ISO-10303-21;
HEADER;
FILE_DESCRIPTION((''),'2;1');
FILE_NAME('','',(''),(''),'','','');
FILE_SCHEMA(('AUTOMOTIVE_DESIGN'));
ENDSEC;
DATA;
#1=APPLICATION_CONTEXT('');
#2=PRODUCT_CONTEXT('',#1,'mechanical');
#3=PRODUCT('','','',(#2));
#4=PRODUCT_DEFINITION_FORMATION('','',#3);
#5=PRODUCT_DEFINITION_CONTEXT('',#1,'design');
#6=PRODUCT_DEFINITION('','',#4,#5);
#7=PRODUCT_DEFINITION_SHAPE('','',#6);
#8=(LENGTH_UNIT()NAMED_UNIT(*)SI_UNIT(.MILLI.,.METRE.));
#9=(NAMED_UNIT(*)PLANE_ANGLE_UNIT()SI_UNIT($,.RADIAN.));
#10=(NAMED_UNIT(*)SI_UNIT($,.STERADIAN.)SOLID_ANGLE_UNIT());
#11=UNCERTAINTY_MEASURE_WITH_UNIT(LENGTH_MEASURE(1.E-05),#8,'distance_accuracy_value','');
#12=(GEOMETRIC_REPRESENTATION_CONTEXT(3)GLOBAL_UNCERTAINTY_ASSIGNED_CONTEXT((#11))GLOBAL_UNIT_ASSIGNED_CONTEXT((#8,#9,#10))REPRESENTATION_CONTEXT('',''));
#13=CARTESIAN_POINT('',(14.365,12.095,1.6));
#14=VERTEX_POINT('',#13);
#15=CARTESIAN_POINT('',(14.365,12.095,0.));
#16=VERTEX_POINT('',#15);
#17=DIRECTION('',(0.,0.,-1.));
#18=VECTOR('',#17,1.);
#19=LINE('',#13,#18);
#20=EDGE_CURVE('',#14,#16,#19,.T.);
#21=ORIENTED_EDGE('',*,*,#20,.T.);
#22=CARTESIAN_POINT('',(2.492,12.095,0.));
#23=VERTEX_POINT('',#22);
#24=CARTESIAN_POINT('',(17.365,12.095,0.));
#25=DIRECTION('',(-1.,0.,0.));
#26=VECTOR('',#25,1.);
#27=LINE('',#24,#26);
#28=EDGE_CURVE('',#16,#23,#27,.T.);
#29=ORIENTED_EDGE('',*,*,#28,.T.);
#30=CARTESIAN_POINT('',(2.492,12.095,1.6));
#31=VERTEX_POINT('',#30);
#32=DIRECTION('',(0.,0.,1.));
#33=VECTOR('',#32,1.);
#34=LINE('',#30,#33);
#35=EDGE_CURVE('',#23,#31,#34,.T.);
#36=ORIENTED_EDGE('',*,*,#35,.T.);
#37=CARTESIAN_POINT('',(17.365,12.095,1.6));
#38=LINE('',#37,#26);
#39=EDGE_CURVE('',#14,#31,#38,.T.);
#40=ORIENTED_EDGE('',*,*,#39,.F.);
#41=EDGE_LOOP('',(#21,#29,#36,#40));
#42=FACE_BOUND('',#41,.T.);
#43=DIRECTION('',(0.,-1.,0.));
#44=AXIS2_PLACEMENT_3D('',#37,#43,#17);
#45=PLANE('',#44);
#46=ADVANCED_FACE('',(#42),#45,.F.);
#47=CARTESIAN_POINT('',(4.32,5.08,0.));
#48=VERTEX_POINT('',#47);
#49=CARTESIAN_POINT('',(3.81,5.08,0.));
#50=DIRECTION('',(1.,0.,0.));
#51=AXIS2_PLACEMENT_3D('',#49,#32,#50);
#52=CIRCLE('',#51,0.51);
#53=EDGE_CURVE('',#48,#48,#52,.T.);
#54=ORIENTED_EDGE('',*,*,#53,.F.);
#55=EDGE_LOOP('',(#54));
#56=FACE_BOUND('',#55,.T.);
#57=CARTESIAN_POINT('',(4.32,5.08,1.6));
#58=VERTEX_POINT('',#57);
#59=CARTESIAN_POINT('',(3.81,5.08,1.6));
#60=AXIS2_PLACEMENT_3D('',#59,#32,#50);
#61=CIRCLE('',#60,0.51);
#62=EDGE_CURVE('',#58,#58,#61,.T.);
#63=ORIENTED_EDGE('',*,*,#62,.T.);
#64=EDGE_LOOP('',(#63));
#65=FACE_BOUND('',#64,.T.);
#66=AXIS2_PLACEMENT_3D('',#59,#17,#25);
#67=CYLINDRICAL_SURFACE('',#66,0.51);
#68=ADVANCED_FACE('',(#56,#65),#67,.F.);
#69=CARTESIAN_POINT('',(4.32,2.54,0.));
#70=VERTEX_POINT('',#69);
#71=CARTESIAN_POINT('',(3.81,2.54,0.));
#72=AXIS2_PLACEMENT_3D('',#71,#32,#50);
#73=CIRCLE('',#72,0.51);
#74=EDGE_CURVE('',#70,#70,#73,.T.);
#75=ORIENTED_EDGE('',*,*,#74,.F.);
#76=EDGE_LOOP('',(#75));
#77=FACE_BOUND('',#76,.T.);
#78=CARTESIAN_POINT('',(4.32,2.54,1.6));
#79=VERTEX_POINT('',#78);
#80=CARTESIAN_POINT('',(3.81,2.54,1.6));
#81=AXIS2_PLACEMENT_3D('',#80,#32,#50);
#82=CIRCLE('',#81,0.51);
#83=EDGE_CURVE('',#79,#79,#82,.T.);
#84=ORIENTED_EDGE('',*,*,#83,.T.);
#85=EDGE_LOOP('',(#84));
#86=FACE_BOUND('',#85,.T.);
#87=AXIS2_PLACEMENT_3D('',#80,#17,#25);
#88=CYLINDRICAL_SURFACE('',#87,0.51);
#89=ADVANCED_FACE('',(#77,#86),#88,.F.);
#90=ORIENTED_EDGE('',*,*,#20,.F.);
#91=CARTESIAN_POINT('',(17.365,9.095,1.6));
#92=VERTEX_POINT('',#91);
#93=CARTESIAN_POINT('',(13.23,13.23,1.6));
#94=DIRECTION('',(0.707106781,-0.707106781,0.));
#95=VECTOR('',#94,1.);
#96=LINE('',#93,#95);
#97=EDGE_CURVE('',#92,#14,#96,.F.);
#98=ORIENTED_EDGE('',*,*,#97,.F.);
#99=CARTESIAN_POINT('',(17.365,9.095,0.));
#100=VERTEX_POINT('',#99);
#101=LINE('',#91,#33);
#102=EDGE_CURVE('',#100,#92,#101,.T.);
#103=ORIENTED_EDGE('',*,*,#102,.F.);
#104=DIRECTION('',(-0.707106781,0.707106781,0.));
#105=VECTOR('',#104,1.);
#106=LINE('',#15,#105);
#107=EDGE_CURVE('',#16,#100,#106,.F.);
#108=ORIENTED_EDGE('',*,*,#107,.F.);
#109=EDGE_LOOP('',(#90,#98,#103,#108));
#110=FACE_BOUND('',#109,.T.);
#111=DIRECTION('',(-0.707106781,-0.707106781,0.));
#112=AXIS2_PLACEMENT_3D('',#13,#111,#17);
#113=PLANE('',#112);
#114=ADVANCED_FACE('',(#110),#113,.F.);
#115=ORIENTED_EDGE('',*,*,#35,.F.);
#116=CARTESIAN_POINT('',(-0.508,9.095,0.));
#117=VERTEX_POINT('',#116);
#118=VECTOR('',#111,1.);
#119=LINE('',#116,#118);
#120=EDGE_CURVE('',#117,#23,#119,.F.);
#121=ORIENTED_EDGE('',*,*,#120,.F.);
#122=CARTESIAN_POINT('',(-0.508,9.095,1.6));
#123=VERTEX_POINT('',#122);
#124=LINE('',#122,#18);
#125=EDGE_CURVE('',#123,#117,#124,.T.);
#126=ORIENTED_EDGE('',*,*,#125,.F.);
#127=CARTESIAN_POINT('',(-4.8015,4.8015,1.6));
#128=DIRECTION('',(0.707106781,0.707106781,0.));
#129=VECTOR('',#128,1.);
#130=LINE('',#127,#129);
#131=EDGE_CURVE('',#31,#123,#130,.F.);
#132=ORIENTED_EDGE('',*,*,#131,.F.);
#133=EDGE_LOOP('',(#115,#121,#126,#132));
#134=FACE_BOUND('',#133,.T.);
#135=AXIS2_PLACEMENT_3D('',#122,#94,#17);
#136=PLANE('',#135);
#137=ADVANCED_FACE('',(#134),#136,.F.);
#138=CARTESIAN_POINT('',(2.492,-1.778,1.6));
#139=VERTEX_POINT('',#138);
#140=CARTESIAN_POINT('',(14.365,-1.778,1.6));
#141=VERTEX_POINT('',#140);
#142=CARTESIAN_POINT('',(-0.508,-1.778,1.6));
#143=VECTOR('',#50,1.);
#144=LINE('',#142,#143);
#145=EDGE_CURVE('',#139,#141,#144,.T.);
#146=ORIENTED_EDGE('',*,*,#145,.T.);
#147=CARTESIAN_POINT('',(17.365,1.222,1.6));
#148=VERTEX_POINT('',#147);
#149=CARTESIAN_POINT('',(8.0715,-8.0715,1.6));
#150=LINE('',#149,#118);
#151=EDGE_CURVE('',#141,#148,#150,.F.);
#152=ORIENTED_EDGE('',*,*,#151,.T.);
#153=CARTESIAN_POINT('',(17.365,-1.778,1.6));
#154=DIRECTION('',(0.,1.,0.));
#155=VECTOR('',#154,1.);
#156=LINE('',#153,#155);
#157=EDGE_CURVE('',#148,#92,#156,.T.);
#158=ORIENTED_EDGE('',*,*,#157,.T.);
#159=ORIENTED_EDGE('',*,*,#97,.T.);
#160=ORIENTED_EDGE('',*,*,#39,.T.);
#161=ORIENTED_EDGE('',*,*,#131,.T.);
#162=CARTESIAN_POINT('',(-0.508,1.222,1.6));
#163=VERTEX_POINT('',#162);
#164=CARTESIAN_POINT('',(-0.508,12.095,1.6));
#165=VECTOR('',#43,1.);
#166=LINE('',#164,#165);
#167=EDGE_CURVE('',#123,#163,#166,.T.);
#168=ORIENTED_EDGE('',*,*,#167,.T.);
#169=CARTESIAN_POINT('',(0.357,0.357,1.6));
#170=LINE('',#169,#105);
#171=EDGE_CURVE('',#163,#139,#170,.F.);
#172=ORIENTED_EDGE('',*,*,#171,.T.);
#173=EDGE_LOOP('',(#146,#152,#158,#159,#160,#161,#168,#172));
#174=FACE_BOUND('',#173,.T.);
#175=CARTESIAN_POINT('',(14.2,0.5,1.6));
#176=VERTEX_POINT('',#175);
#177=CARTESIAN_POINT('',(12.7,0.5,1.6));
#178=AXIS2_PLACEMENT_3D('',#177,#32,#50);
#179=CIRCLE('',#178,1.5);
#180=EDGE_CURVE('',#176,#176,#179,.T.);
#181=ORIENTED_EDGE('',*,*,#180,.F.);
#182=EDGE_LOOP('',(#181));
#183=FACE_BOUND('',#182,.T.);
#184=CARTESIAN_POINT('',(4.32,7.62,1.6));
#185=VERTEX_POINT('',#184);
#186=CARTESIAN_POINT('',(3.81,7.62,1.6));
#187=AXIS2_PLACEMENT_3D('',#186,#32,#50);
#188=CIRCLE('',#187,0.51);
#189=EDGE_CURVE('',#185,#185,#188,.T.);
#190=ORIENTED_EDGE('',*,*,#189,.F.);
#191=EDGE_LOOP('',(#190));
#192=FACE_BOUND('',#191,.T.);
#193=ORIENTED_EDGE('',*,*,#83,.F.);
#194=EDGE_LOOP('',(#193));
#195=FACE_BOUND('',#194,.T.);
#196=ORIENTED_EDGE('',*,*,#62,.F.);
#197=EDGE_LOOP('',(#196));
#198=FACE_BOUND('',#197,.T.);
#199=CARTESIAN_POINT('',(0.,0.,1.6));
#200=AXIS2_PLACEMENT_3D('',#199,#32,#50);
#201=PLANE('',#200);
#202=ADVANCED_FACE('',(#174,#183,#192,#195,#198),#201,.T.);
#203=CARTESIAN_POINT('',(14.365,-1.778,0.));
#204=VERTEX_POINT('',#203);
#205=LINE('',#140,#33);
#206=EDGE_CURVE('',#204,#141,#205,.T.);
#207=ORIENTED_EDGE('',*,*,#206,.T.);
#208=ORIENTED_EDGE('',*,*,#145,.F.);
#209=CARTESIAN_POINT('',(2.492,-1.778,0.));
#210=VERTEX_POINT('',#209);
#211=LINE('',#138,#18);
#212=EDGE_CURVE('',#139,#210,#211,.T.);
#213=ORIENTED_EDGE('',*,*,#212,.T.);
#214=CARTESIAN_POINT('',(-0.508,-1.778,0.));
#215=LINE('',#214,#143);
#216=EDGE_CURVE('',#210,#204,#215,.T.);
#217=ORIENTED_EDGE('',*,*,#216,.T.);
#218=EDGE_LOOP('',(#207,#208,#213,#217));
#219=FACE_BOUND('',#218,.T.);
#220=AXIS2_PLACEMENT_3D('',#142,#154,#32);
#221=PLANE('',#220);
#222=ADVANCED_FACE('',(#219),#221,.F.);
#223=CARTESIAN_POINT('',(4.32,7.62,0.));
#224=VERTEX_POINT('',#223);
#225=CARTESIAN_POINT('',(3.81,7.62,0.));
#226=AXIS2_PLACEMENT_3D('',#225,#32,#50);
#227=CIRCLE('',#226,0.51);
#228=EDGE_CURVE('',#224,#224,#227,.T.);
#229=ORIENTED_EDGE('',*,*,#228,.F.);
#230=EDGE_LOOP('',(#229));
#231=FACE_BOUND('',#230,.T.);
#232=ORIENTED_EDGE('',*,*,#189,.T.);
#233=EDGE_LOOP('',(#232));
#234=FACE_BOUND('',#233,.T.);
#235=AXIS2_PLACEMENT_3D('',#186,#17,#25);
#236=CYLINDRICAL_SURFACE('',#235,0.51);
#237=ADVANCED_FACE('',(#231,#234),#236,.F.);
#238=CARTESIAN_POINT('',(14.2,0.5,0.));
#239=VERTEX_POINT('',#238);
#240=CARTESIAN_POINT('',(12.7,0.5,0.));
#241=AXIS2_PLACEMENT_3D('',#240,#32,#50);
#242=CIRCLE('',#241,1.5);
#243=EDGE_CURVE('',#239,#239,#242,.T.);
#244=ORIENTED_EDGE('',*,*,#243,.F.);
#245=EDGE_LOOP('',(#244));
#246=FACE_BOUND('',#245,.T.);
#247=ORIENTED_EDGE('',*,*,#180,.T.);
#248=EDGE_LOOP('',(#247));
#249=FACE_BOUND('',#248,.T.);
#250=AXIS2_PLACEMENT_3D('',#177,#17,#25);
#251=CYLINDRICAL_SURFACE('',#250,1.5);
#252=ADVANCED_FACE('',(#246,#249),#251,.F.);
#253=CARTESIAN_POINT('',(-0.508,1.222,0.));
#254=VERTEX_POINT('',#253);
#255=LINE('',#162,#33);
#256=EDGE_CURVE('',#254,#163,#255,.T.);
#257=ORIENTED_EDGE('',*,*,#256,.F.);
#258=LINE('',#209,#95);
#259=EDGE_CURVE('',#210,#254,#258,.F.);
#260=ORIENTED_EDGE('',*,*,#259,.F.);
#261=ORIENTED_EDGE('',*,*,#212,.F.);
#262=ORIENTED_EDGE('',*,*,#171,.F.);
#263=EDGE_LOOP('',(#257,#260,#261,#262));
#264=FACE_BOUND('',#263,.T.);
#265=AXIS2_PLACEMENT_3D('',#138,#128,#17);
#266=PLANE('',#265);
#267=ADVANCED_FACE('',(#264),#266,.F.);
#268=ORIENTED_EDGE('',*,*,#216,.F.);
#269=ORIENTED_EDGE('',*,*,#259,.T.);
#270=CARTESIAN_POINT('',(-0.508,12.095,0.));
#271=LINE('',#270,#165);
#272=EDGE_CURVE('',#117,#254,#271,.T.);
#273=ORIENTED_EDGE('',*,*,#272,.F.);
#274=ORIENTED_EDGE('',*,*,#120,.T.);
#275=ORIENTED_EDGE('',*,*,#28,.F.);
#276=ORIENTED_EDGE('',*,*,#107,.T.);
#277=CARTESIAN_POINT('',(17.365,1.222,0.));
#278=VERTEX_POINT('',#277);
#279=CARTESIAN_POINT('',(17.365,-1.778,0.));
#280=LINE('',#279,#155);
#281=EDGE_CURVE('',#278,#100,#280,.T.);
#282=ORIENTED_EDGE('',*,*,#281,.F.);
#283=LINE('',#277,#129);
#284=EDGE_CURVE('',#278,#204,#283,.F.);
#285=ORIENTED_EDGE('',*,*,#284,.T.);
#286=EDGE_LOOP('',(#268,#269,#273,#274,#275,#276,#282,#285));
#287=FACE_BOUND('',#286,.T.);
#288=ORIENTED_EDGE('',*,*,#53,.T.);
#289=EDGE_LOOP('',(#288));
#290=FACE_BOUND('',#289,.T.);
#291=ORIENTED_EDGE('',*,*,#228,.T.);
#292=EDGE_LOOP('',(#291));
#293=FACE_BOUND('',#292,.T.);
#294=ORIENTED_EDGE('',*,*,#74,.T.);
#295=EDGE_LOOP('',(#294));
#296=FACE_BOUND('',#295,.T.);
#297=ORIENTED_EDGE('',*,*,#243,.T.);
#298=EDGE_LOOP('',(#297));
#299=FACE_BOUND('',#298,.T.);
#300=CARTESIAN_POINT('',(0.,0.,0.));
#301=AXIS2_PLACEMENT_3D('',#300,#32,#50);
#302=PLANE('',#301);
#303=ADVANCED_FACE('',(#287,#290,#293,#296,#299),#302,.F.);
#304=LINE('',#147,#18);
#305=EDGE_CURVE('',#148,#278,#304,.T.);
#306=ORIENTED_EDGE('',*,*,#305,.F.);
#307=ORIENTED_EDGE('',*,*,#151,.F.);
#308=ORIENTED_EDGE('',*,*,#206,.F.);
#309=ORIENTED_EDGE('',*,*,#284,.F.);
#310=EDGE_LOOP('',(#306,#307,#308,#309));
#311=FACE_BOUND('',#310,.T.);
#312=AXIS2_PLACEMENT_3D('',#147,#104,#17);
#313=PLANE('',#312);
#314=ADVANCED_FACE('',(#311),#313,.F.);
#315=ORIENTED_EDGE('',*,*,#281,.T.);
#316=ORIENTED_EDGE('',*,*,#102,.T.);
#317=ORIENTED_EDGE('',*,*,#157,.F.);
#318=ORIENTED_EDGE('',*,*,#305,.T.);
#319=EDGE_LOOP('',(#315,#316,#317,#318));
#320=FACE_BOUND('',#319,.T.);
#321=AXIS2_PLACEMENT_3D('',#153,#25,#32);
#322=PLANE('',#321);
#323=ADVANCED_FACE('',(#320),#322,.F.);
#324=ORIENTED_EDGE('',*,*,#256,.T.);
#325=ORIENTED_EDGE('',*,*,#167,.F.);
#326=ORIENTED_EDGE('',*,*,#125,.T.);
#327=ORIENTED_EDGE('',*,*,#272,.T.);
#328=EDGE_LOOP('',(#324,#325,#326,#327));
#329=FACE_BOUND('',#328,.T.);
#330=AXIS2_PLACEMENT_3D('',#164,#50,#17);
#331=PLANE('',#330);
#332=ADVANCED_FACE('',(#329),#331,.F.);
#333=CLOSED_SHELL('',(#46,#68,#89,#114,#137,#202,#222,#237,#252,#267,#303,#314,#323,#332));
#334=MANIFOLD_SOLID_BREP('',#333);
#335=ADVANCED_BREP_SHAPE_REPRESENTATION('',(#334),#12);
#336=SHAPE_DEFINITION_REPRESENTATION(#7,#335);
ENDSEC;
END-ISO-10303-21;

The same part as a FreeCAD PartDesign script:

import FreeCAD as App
import Part
import Sketcher


def edges_at(feature, points):
    """Names of the edges that pass closest to the given points."""
    edges = feature.Shape.Edges
    near = lambda p: min(range(len(edges)), key=lambda i: edges[i].distToShape(Part.Vertex(*p))[0])
    return sorted({f"Edge{near(p) + 1}" for p in points})

doc = App.newDocument("Part")
params = doc.addObject("Spreadsheet::Sheet", "Params")
for row, (alias, value) in enumerate([
    ("pad1_length", "1.6 mm"),
    ("sketch2_diameter", "3 mm"),
    ("sketch3_diameter", "1.02 mm"),
    ("chamfer_size", "3 mm"),
], start=1):
    params.set(f"A{row}", alias)
    params.set(f"B{row}", "=" + value)
    params.setAlias(f"B{row}", alias)

body = doc.addObject("PartDesign::Body", "Body")

sketch1 = body.newObject("Sketcher::SketchObject", "Sketch")
sketch1.AttachmentSupport = (doc.getObject("XY_Plane"), [""])
sketch1.MapMode = "FlatFace"
sketch1.addGeometry(Part.LineSegment(App.Vector(-1, 12, 0), App.Vector(-1, -2, 0)), False)
sketch1.addGeometry(Part.LineSegment(App.Vector(-1, -2, 0), App.Vector(17, -2, 0)), False)
sketch1.addGeometry(Part.LineSegment(App.Vector(17, -2, 0), App.Vector(17, 12, 0)), False)
sketch1.addGeometry(Part.LineSegment(App.Vector(17, 12, 0), App.Vector(-1, 12, 0)), False)
sketch1.addConstraint(Sketcher.Constraint("Coincident", 0, 2, 1, 1))
sketch1.addConstraint(Sketcher.Constraint("Coincident", 1, 2, 2, 1))
sketch1.addConstraint(Sketcher.Constraint("Coincident", 2, 2, 3, 1))
sketch1.addConstraint(Sketcher.Constraint("Coincident", 3, 2, 0, 1))
sketch1.addConstraint(Sketcher.Constraint("Vertical", 0))
sketch1.addConstraint(Sketcher.Constraint("Horizontal", 1))
sketch1.addConstraint(Sketcher.Constraint("Vertical", 2))
sketch1.addConstraint(Sketcher.Constraint("Horizontal", 3))
sketch1.addConstraint(Sketcher.Constraint("DistanceX", 1, 1, 1, 2, 17.873))
sketch1.addConstraint(Sketcher.Constraint("DistanceY", 0, 2, 0, 1, 13.873))
sketch1.addConstraint(Sketcher.Constraint("DistanceX", 0, 2, -1, 1, 0.508))
sketch1.addConstraint(Sketcher.Constraint("DistanceY", 0, 2, -1, 1, 1.778))
pad1 = body.newObject("PartDesign::Pad", "Pad")
pad1.Profile = sketch1
pad1.setExpression("Length", "Params.pad1_length")

sketch2 = body.newObject("Sketcher::SketchObject", "Sketch001")
sketch2.AttachmentSupport = (doc.getObject("XY_Plane"), [""])
sketch2.MapMode = "FlatFace"
sketch2.addGeometry(Part.Circle(App.Vector(12.7, 0.5, 0), App.Vector(0, 0, 1), 1.5), False)
sketch2.addConstraint(Sketcher.Constraint("Diameter", 0, 3.0))
sketch2.addConstraint(Sketcher.Constraint("DistanceX", -1, 1, 0, 3, 12.7))
sketch2.addConstraint(Sketcher.Constraint("DistanceY", -1, 1, 0, 3, 0.5))
sketch2.setExpression("Constraints[0]", "Params.sketch2_diameter")
pocket1 = body.newObject("PartDesign::Pocket", "Pocket")
pocket1.Profile = sketch2
pocket1.Type = "ThroughAll"
pocket1.Reversed = True

sketch3 = body.newObject("Sketcher::SketchObject", "Sketch002")
sketch3.AttachmentSupport = (doc.getObject("XY_Plane"), [""])
sketch3.MapMode = "FlatFace"
sketch3.addGeometry(Part.Circle(App.Vector(3.8, 2.5, 0), App.Vector(0, 0, 1), 0.5), False)
sketch3.addGeometry(Part.Circle(App.Vector(3.8, 5.1, 0), App.Vector(0, 0, 1), 0.5), False)
sketch3.addGeometry(Part.Circle(App.Vector(3.8, 7.6, 0), App.Vector(0, 0, 1), 0.5), False)
sketch3.addConstraint(Sketcher.Constraint("Equal", 0, 1))
sketch3.addConstraint(Sketcher.Constraint("Equal", 1, 2))
sketch3.addConstraint(Sketcher.Constraint("Vertical", 0, 3, 1, 3))
sketch3.addConstraint(Sketcher.Constraint("Vertical", 1, 3, 2, 3))
sketch3.addConstraint(Sketcher.Constraint("Diameter", 0, 1.02))
sketch3.addConstraint(Sketcher.Constraint("DistanceX", -1, 1, 0, 3, 3.81))
sketch3.addConstraint(Sketcher.Constraint("DistanceY", -1, 1, 0, 3, 2.54))
sketch3.addConstraint(Sketcher.Constraint("DistanceY", -1, 1, 1, 3, 5.08))
sketch3.addConstraint(Sketcher.Constraint("DistanceY", -1, 1, 2, 3, 7.62))
sketch3.setExpression("Constraints[4]", "Params.sketch3_diameter")
pocket2 = body.newObject("PartDesign::Pocket", "Pocket001")
pocket2.Profile = sketch3
pocket2.Type = "ThroughAll"
pocket2.Reversed = True
doc.recompute()

chamfer = body.newObject("PartDesign::Chamfer", "Chamfer")
chamfer.Base = (pocket2, edges_at(pocket2, [
    (-0.508, -1.778, 0.8),
    (-0.508, 12.095, 0.8),
    (17.365, 12.095, 0.8),
    (17.365, -1.778, 0.8),
]))
chamfer.setExpression("Size", "Params.chamfer_size")

doc.recompute()
